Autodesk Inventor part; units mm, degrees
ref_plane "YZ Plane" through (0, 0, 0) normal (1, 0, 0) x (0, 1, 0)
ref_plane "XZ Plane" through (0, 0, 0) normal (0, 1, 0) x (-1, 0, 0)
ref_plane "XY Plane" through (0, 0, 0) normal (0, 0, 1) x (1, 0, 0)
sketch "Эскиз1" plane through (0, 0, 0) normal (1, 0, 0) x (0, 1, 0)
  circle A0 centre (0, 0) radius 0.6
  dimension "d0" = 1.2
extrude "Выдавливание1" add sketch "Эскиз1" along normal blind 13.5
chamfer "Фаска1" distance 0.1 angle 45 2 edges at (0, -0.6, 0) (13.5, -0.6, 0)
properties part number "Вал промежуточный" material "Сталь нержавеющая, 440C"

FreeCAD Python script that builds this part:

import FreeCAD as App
import Part
import Sketcher
from FreeCAD import Vector


def edges_at(feature, points):
    """Names of the edges that pass closest to the given points."""
    edges = feature.Shape.Edges
    near = lambda p: min(range(len(edges)), key=lambda i: edges[i].distToShape(Part.Vertex(*p))[0])
    return sorted({f"Edge{near(p) + 1}" for p in points})

doc = App.newDocument("Part")
body = doc.addObject("PartDesign::Body", "Body")

# Sketch on YZ plane
sketch1 = doc.addObject("Sketcher::SketchObject", "Sketch")
body.addObject(sketch1)
sketch1.AttachmentSupport = (doc.YZ_Plane, [""])
sketch1.MapMode = "FlatFace"
sketch1.addGeometry(Part.Circle(Vector(0, 0, 0), Vector(0, 0, 1), 0.6), False)
sketch1.addConstraint([
    Sketcher.Constraint("Coincident", 0, 3, -1, 1),
    Sketcher.Constraint("Diameter", 0, 1.2),
])
pad1 = doc.addObject("PartDesign::Pad", "Pad")
body.addObject(pad1)
pad1.Profile = sketch1
pad1.Length = 13.5
doc.recompute()

chamfer = doc.addObject("PartDesign::Chamfer", "Chamfer")
body.addObject(chamfer)
chamfer.Base = (pad1, edges_at(pad1, [(0, -0.6, 0), (13.5, -0.6, 0)]))
chamfer.Size = 0.1

doc.recompute()
